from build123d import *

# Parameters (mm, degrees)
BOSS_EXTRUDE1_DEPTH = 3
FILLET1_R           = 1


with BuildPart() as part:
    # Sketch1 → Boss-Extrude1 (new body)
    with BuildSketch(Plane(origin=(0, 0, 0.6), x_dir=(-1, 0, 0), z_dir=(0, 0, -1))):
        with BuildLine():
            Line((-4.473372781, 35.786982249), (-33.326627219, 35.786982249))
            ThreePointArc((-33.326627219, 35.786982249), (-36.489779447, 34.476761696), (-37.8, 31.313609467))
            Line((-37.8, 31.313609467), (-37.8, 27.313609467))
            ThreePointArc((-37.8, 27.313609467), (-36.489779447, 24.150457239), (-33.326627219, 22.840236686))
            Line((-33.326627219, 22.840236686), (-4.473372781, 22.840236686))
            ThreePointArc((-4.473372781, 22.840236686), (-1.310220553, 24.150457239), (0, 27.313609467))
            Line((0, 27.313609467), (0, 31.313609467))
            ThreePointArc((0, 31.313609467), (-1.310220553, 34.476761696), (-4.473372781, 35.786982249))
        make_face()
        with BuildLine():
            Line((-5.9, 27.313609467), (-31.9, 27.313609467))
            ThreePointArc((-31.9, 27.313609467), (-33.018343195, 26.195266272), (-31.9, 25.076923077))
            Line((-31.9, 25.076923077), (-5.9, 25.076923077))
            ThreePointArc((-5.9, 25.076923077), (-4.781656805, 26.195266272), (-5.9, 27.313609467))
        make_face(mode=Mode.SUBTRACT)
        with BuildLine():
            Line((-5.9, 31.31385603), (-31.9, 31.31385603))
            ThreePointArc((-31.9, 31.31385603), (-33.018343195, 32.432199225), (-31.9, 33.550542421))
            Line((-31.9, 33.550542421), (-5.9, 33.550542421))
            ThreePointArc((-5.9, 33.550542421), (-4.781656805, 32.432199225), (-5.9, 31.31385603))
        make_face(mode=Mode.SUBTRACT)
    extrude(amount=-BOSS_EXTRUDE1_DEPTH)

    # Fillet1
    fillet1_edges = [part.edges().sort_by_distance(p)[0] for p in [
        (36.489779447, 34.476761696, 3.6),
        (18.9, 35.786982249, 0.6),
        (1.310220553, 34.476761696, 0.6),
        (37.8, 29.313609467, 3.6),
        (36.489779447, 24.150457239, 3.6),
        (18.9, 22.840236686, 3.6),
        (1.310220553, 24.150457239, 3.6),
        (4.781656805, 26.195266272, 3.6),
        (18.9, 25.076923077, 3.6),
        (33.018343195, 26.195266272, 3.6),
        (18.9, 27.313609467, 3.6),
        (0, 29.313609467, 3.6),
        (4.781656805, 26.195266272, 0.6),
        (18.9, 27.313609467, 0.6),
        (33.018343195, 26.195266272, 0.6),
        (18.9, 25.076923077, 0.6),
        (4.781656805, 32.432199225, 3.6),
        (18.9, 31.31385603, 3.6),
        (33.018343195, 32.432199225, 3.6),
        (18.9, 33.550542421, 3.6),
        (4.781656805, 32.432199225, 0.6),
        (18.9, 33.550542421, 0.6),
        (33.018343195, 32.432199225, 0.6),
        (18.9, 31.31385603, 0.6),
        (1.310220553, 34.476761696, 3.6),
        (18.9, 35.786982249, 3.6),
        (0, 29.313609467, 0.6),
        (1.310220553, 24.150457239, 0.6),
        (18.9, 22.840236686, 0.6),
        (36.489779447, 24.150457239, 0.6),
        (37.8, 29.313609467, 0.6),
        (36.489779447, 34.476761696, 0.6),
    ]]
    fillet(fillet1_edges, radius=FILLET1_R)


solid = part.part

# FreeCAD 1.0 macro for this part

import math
import FreeCAD as App
import Part
import Sketcher


def edges_at(feature, points):
    """Names of the edges that pass closest to the given points."""
    edges = feature.Shape.Edges
    near = lambda p: min(range(len(edges)), key=lambda i: edges[i].distToShape(Part.Vertex(*p))[0])
    return sorted({f"Edge{near(p) + 1}" for p in points})

doc = App.newDocument("Part")
params = doc.addObject("Spreadsheet::Sheet", "Params")
for row, (alias, value) in enumerate([
    ("sketch1_width", "26 mm"),
    ("sketch1_height", "4 mm"),
    ("pad1_length", "3 mm"),
    ("fillet_radius", "1 mm"),
], start=1):
    params.set(f"A{row}", alias)
    params.set(f"B{row}", "=" + value)
    params.setAlias(f"B{row}", alias)

body = doc.addObject("PartDesign::Body", "Body")

# Sketch on XY plane
sketch1 = body.newObject("Sketcher::SketchObject", "Sketch")
sketch1.AttachmentSupport = (doc.getObject("XY_Plane"), [""])
sketch1.MapMode = "FlatFace"
sketch1.AttachmentOffset = App.Placement(App.Vector(0, 0, 0.6), App.Rotation())
sketch1.addGeometry([
    Part.LineSegment(App.Vector(4.5, 35.8, 0), App.Vector(33.3, 35.8, 0)),  # 0
    Part.ArcOfCircle(Part.Circle(App.Vector(33.3, 31.3, 0), App.Vector(0, 0, 1), 4.5), math.radians(0), math.radians(90)),  # 1
    Part.LineSegment(App.Vector(37.8, 31.3, 0), App.Vector(37.8, 27.3, 0)),  # 2
    Part.ArcOfCircle(Part.Circle(App.Vector(33.3, 27.3, 0), App.Vector(0, 0, 1), 4.5), math.radians(-90), math.radians(0)),  # 3
    Part.LineSegment(App.Vector(33.3, 22.8, 0), App.Vector(4.5, 22.8, 0)),  # 4
    Part.ArcOfCircle(Part.Circle(App.Vector(4.5, 27.3, 0), App.Vector(0, 0, 1), 4.5), math.radians(-180), math.radians(-90)),  # 5
    Part.LineSegment(App.Vector(0, 27.3, 0), App.Vector(0, 31.3, 0)),  # 6
    Part.ArcOfCircle(Part.Circle(App.Vector(4.5, 31.3, 0), App.Vector(0, 0, 1), 4.5), math.radians(90), math.radians(180)),  # 7
    Part.LineSegment(App.Vector(31.9, 27.3, 0), App.Vector(5.9, 27.3, 0)),  # 8
    Part.ArcOfCircle(Part.Circle(App.Vector(5.9, 26.2, 0), App.Vector(0, 0, 1), 1.1), math.radians(90), math.radians(270)),  # 9
    Part.LineSegment(App.Vector(5.9, 25.1, 0), App.Vector(31.9, 25.1, 0)),  # 10
    Part.ArcOfCircle(Part.Circle(App.Vector(31.9, 26.2, 0), App.Vector(0, 0, 1), 1.1), math.radians(-90), math.radians(90)),  # 11
    Part.ArcOfCircle(Part.Circle(App.Vector(5.9, 32.4, 0), App.Vector(0, 0, 1), 1.1), math.radians(90), math.radians(270)),  # 12
    Part.LineSegment(App.Vector(5.9, 31.3, 0), App.Vector(31.9, 31.3, 0)),  # 13
    Part.ArcOfCircle(Part.Circle(App.Vector(31.9, 32.4, 0), App.Vector(0, 0, 1), 1.1), math.radians(-90), math.radians(90)),  # 14
    Part.LineSegment(App.Vector(31.9, 33.6, 0), App.Vector(5.9, 33.6, 0)),  # 15
], False)
sketch1.addConstraint([
    Sketcher.Constraint("Tangent", 0, 2, 1, 2),
    Sketcher.Constraint("Tangent", 1, 1, 2, 1),
    Sketcher.Constraint("Tangent", 2, 2, 3, 2),
    Sketcher.Constraint("Tangent", 3, 1, 4, 1),
    Sketcher.Constraint("Tangent", 4, 2, 5, 2),
    Sketcher.Constraint("Tangent", 5, 1, 6, 1),
    Sketcher.Constraint("Tangent", 6, 2, 7, 2),
    Sketcher.Constraint("Tangent", 7, 1, 0, 1),
    Sketcher.Constraint("Tangent", 8, 2, 9, 1),
    Sketcher.Constraint("Tangent", 9, 2, 10, 1),
    Sketcher.Constraint("Tangent", 10, 2, 11, 1),
    Sketcher.Constraint("Tangent", 11, 2, 8, 1),
    Sketcher.Constraint("Tangent", 12, 2, 13, 1),
    Sketcher.Constraint("Tangent", 13, 2, 14, 1),
    Sketcher.Constraint("Tangent", 14, 2, 15, 1),
    Sketcher.Constraint("Tangent", 15, 2, 12, 1),
    Sketcher.Constraint("Horizontal", 0),
    Sketcher.Constraint("Vertical", 2),
    Sketcher.Constraint("Horizontal", 4),
    Sketcher.Constraint("Vertical", 6),
    Sketcher.Constraint("Horizontal", 8),
    Sketcher.Constraint("Horizontal", 10),
    Sketcher.Constraint("Horizontal", 13),
    Sketcher.Constraint("Horizontal", 15),
    Sketcher.Constraint("Equal", 1, 3),
    Sketcher.Constraint("Equal", 3, 5),
    Sketcher.Constraint("Equal", 5, 7),
    Sketcher.Constraint("Equal", 11, 12),
    Sketcher.Constraint("PointOnObject", 5, 1, -2),
    Sketcher.Constraint("Horizontal", 5, 1, 8, 2),
    Sketcher.Constraint("Vertical", 9, 3, 12, 3),
    Sketcher.Constraint("Vertical", 11, 3, 14, 3),
    Sketcher.Constraint("DistanceX", 8, 2, 8, 1, 26.0),
    Sketcher.Constraint("DistanceY", 2, 2, 2, 1, 4.0),
    Sketcher.Constraint("DistanceX", -1, 1, 9, 3, 5.9),
    Sketcher.Constraint("DistanceX", -1, 1, 1, 1, 37.8),
    Sketcher.Constraint("Radius", 1, 4.473373),
    Sketcher.Constraint("Radius", 9, 1.118343),
    Sketcher.Constraint("DistanceY", -1, 1, 12, 3, 32.432199),
    Sketcher.Constraint("DistanceY", -1, 1, 1, 3, 31.313609),
])
sketch1.setExpression("Constraints[32]", "Params.sketch1_width")
sketch1.setExpression("Constraints[33]", "Params.sketch1_height")
pad1 = body.newObject("PartDesign::Pad", "Pad")
pad1.Profile = sketch1
pad1.setExpression("Length", "Params.pad1_length")
doc.recompute()

fillet = body.newObject("PartDesign::Fillet", "Fillet")
fillet.Base = (pad1, edges_at(pad1, [
    (36.49, 34.477, 3.6),
    (18.9, 35.787, 0.6),
    (1.31, 34.477, 0.6),
    (37.8, 29.314, 3.6),
    (36.49, 24.15, 3.6),
    (18.9, 22.84, 3.6),
    (1.31, 24.15, 3.6),
    (4.782, 26.195, 3.6),
    (18.9, 25.077, 3.6),
    (33.018, 26.195, 3.6),
    (18.9, 27.314, 3.6),
    (0, 29.314, 3.6),
    (4.782, 26.195, 0.6),
    (18.9, 27.314, 0.6),
    (33.018, 26.195, 0.6),
    (18.9, 25.077, 0.6),
    (4.782, 32.432, 3.6),
    (18.9, 31.314, 3.6),
    (33.018, 32.432, 3.6),
    (18.9, 33.551, 3.6),
    (4.782, 32.432, 0.6),
    (18.9, 33.551, 0.6),
    (33.018, 32.432, 0.6),
    (18.9, 31.314, 0.6),
    (1.31, 34.477, 3.6),
    (18.9, 35.787, 3.6),
    (0, 29.314, 0.6),
    (1.31, 24.15, 0.6),
    (18.9, 22.84, 0.6),
    (36.49, 24.15, 0.6),
    (37.8, 29.314, 0.6),
    (36.49, 34.477, 0.6),
]))
fillet.setExpression("Radius", "Params.fillet_radius")

doc.recompute()
